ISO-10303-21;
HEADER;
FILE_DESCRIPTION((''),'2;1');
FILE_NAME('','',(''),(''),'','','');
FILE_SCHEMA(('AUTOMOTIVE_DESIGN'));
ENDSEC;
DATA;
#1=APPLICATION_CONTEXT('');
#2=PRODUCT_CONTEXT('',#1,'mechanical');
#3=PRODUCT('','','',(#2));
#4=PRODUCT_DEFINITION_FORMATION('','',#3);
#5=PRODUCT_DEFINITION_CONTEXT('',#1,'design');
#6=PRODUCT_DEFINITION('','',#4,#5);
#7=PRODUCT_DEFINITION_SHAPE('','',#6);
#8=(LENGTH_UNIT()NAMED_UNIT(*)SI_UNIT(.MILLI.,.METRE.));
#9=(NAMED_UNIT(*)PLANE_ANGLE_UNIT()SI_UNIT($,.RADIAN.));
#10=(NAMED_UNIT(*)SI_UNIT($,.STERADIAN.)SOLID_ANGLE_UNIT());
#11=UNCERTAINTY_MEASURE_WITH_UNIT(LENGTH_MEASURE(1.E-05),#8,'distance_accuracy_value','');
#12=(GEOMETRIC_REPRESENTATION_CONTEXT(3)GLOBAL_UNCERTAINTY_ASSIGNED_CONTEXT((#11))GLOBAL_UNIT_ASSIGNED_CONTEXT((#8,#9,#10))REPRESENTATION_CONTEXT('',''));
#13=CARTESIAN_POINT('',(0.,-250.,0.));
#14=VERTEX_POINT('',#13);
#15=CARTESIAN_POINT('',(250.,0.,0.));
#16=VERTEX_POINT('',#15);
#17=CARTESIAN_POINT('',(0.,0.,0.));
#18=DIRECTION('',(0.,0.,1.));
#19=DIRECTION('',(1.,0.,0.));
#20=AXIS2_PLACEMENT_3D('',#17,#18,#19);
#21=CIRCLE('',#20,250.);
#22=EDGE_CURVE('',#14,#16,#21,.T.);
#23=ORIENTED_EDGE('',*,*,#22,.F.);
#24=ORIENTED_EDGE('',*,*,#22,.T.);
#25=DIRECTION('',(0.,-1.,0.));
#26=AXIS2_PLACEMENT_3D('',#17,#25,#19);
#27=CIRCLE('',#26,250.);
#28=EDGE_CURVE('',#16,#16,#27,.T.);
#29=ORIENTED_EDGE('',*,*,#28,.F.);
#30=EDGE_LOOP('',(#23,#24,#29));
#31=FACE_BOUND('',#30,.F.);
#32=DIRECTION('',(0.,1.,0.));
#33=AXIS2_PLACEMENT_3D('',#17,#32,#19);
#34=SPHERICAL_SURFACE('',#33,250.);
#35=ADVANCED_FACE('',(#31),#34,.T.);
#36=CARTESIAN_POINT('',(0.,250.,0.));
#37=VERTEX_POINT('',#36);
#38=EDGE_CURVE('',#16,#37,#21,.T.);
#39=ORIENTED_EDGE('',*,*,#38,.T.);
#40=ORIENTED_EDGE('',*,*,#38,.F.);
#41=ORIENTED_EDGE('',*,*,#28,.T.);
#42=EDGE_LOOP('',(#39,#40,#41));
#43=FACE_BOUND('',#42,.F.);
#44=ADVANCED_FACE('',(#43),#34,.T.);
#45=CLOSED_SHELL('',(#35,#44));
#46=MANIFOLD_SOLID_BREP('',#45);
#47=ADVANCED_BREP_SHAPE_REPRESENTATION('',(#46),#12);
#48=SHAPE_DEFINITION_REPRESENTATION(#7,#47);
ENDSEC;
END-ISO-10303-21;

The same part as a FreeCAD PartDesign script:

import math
import FreeCAD as App
import Part
import Sketcher
Q = App.Units.Quantity

doc = App.newDocument("Part")
body = doc.addObject("PartDesign::Body", "Body")

# Sketch on XY plane
sketch1 = body.newObject("Sketcher::SketchObject", "Sketch")
sketch1.AttachmentSupport = (doc.getObject("XY_Plane"), [""])
sketch1.MapMode = "FlatFace"
sketch1.addGeometry(Part.ArcOfCircle(Part.Circle(App.Vector(0, 0, 0), App.Vector(0, 0, 1), 250), math.radians(-90), math.radians(90)), False)
sketch1.addGeometry(Part.LineSegment(App.Vector(0, 250, 0), App.Vector(0, -250, 0)), False)
sketch1.addConstraint(Sketcher.Constraint("Coincident", 0, 1, 1, 2))
sketch1.addConstraint(Sketcher.Constraint("Coincident", 1, 1, 0, 2))
sketch1.addConstraint(Sketcher.Constraint("Vertical", 1))
sketch1.addConstraint(Sketcher.Constraint("Coincident", 0, 3, -1, 1))
sketch1.addConstraint(Sketcher.Constraint("PointOnObject", 0, 1, -2))
sketch1.addConstraint(Sketcher.Constraint("Radius", 0, Q("250 mm")))
revolution = body.newObject("PartDesign::Revolution", "Revolution")
revolution.Profile = sketch1
revolution.ReferenceAxis = (sketch1, ["V_Axis"])
revolution.Angle = 360

doc.recompute()
